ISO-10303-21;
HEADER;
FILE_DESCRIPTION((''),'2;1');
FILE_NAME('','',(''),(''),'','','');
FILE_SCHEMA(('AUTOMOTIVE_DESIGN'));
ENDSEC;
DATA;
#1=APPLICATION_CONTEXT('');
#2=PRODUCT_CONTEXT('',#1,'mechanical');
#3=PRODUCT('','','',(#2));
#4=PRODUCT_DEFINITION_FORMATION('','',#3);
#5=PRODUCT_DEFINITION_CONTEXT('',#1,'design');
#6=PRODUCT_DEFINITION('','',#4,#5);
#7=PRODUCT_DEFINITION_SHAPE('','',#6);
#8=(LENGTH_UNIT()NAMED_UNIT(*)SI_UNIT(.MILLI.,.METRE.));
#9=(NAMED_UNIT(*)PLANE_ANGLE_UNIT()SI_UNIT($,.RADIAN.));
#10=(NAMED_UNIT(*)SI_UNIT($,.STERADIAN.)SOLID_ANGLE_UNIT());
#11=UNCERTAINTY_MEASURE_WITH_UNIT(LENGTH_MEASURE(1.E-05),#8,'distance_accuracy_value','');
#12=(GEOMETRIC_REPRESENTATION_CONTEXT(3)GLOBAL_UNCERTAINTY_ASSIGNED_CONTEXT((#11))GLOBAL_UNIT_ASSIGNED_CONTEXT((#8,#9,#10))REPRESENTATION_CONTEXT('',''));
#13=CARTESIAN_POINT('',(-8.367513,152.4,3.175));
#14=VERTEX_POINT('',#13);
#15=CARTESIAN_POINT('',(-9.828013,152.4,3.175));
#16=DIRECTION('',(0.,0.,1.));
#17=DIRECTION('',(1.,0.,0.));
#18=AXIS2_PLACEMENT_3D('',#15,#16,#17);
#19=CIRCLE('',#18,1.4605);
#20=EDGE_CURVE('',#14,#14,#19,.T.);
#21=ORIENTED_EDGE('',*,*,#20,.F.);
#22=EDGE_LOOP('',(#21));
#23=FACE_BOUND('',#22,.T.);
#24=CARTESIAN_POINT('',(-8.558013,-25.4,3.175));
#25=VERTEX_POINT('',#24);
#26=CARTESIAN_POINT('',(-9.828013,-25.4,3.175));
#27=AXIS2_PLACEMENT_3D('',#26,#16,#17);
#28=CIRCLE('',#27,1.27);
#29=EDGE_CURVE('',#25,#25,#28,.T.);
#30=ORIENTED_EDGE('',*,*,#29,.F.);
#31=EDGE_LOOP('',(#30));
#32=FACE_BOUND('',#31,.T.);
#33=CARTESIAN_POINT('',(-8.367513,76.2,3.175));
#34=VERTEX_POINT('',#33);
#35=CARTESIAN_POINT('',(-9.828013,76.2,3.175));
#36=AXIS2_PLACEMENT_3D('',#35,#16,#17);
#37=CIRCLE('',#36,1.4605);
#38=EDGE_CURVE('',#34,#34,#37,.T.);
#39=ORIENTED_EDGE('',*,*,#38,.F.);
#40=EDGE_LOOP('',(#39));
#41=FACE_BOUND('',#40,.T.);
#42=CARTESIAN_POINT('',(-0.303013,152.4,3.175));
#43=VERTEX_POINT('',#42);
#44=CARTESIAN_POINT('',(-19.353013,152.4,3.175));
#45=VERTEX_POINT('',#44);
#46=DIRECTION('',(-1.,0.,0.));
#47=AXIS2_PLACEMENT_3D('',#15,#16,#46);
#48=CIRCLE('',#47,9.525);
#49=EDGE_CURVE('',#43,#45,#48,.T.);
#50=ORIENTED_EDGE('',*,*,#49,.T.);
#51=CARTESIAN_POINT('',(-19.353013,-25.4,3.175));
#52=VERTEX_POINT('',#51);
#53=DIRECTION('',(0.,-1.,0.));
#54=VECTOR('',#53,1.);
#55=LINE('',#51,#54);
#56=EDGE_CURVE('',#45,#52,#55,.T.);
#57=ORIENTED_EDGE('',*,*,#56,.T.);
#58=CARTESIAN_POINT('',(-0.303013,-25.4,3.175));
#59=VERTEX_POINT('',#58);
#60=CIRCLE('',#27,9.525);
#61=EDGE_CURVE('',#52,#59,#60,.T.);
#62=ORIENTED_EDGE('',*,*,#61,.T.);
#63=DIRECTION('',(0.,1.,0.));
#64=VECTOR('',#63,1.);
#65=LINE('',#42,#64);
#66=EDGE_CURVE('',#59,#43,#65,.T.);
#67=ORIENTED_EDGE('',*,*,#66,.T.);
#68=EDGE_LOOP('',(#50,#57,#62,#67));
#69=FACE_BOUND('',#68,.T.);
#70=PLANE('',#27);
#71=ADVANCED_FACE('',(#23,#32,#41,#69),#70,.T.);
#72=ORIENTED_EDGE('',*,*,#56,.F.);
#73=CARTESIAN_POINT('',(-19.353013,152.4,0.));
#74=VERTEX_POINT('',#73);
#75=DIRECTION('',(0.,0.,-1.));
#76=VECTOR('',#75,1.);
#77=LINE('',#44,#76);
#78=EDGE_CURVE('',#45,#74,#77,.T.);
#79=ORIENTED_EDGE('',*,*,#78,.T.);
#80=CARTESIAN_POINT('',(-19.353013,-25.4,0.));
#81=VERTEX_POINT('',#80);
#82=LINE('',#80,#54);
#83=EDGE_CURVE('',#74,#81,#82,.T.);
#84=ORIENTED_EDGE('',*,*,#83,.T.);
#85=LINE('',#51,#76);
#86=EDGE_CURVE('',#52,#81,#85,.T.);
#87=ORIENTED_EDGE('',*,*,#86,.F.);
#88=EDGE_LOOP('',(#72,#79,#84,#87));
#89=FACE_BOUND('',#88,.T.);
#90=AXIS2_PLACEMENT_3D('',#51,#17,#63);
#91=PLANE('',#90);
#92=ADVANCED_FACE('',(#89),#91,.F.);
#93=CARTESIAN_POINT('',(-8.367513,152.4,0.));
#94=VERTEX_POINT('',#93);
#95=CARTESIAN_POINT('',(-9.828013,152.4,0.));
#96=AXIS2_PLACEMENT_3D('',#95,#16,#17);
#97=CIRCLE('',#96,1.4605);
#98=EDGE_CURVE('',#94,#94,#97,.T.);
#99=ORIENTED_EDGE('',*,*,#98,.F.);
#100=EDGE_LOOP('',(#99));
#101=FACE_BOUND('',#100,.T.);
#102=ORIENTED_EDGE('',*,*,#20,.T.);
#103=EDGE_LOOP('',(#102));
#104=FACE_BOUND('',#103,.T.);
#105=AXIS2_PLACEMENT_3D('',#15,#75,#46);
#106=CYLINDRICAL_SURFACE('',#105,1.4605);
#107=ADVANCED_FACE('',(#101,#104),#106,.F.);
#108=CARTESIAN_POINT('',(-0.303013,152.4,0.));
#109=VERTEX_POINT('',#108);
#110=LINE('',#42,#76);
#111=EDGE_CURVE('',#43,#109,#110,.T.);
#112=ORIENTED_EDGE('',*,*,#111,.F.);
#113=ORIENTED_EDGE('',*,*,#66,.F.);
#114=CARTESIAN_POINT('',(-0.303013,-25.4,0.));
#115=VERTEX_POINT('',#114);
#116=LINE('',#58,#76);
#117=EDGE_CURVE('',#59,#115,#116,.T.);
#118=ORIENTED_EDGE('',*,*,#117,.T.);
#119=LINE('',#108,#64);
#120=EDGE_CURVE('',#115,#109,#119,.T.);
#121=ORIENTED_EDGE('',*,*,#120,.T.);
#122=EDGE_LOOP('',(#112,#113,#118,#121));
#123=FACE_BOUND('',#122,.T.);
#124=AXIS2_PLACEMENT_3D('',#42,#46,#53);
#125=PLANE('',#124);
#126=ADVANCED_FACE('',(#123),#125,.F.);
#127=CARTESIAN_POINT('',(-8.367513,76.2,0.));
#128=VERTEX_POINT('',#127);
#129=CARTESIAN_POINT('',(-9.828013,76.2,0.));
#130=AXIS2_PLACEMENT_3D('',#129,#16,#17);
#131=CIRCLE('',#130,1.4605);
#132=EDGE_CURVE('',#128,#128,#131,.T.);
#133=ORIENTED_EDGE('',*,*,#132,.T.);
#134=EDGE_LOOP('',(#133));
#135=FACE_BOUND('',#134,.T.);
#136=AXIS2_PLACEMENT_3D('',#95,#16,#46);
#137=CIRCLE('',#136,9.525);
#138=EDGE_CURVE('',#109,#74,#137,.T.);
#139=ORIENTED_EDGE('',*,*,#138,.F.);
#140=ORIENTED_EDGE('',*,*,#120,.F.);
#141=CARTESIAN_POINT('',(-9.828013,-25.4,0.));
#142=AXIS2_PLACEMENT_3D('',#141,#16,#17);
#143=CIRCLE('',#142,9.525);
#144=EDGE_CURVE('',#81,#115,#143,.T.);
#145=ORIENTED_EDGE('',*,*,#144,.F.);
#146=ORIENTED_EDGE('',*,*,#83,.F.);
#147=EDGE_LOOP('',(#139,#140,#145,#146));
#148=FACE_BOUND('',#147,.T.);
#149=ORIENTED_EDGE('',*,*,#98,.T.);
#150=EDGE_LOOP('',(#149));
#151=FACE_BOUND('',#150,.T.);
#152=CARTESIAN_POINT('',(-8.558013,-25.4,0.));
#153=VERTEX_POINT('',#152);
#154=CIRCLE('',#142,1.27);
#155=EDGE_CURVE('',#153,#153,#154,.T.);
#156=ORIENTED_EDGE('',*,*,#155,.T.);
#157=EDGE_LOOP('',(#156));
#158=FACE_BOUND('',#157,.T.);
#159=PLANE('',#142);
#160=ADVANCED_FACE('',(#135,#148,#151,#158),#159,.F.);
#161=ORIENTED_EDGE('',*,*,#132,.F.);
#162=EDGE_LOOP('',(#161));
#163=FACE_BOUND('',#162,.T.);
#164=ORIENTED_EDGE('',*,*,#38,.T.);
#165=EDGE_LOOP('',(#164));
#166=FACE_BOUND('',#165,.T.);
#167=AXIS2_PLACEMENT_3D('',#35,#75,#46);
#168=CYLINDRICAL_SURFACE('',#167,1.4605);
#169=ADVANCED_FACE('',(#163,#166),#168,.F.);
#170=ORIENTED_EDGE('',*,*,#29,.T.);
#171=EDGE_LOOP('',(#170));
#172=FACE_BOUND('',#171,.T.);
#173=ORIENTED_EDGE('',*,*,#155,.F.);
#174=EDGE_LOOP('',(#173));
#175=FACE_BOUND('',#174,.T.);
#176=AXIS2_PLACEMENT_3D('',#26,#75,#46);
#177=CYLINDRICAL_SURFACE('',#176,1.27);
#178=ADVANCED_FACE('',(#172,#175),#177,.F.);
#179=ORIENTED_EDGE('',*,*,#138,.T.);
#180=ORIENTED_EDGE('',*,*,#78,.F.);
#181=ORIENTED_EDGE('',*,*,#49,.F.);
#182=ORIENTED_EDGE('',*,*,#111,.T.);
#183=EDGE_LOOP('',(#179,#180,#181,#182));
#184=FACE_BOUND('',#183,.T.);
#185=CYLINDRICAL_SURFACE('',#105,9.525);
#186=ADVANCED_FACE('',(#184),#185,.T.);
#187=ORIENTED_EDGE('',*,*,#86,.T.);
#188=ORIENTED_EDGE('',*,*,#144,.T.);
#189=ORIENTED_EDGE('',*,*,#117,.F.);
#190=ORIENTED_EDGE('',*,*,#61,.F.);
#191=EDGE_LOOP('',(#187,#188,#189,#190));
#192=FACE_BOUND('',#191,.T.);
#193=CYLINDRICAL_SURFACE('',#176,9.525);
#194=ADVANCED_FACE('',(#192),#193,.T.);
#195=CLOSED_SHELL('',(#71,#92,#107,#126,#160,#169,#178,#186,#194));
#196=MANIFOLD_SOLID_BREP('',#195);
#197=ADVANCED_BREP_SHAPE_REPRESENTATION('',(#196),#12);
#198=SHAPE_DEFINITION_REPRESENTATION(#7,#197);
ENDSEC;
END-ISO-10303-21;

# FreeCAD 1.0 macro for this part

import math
import FreeCAD as App
import Part
import Sketcher
from FreeCAD import Vector
Q = App.Units.Quantity

doc = App.newDocument("Part")
body = doc.addObject("PartDesign::Body", "Body")

sketch1 = body.newObject("Sketcher::SketchObject", "Sketch")
sketch1.AttachmentSupport = (doc.getObject("XY_Plane"), [""])
sketch1.MapMode = "FlatFace"
sketch1.addGeometry([
    Part.LineSegment(Vector(-19.353013, 152.4, 0), Vector(-19.353013, -25.4, 0)),
    Part.ArcOfCircle(Part.Circle(Vector(-9.828013, -25.4, 0), Vector(0, 0, 1), 9.525), math.radians(180), math.radians(360)),
    Part.LineSegment(Vector(-0.303013, -25.4, 0), Vector(-0.303013, 152.4, 0)),
    Part.ArcOfCircle(Part.Circle(Vector(-9.828013, 152.4, 0), Vector(0, 0, 1), 9.525), math.radians(0), math.radians(180)),
    Part.Circle(Vector(-9.828013, -25.4, 0), Vector(0, 0, 1), 1.27),
    Part.Circle(Vector(-9.828013, 76.2, 0), Vector(0, 0, 1), 1.4605),
    Part.Circle(Vector(-9.828013, 152.4, 0), Vector(0, 0, 1), 1.4605),
], False)
sketch1.addConstraint([
    Sketcher.Constraint("Tangent", 0, 2, 1, 1),
    Sketcher.Constraint("Tangent", 1, 2, 2, 1),
    Sketcher.Constraint("Tangent", 2, 2, 3, 1),
    Sketcher.Constraint("Tangent", 3, 2, 0, 1),
    Sketcher.Constraint("Vertical", 0),
    Sketcher.Constraint("Vertical", 2),
    Sketcher.Constraint("Coincident", 4, 3, 1, 3),
    Sketcher.Constraint("Coincident", 6, 3, 3, 3),
    Sketcher.Constraint("Equal", 5, 6),
    Sketcher.Constraint("Vertical", 4, 3, 5, 3),
    Sketcher.Constraint("Diameter", 4, Q("0.1 in")),
    Sketcher.Constraint("DistanceY", 0, 2, 0, 1, Q("7 in")),
    Sketcher.Constraint("Diameter", 5, Q("0.115 in")),
    Sketcher.Constraint("DistanceY", 1, 3, -1, 1, Q("1 in")),
    Sketcher.Constraint("DistanceY", -1, 1, 5, 3, Q("3 in")),
    Sketcher.Constraint("Radius", 1, Q("0.375 in")),
    Sketcher.Constraint("DistanceX", 1, 3, -1, 1, 9.828013),
])
pad1 = body.newObject("PartDesign::Pad", "Pad")
pad1.Profile = sketch1
pad1.Length = Q("0.125 in")

doc.recompute()
